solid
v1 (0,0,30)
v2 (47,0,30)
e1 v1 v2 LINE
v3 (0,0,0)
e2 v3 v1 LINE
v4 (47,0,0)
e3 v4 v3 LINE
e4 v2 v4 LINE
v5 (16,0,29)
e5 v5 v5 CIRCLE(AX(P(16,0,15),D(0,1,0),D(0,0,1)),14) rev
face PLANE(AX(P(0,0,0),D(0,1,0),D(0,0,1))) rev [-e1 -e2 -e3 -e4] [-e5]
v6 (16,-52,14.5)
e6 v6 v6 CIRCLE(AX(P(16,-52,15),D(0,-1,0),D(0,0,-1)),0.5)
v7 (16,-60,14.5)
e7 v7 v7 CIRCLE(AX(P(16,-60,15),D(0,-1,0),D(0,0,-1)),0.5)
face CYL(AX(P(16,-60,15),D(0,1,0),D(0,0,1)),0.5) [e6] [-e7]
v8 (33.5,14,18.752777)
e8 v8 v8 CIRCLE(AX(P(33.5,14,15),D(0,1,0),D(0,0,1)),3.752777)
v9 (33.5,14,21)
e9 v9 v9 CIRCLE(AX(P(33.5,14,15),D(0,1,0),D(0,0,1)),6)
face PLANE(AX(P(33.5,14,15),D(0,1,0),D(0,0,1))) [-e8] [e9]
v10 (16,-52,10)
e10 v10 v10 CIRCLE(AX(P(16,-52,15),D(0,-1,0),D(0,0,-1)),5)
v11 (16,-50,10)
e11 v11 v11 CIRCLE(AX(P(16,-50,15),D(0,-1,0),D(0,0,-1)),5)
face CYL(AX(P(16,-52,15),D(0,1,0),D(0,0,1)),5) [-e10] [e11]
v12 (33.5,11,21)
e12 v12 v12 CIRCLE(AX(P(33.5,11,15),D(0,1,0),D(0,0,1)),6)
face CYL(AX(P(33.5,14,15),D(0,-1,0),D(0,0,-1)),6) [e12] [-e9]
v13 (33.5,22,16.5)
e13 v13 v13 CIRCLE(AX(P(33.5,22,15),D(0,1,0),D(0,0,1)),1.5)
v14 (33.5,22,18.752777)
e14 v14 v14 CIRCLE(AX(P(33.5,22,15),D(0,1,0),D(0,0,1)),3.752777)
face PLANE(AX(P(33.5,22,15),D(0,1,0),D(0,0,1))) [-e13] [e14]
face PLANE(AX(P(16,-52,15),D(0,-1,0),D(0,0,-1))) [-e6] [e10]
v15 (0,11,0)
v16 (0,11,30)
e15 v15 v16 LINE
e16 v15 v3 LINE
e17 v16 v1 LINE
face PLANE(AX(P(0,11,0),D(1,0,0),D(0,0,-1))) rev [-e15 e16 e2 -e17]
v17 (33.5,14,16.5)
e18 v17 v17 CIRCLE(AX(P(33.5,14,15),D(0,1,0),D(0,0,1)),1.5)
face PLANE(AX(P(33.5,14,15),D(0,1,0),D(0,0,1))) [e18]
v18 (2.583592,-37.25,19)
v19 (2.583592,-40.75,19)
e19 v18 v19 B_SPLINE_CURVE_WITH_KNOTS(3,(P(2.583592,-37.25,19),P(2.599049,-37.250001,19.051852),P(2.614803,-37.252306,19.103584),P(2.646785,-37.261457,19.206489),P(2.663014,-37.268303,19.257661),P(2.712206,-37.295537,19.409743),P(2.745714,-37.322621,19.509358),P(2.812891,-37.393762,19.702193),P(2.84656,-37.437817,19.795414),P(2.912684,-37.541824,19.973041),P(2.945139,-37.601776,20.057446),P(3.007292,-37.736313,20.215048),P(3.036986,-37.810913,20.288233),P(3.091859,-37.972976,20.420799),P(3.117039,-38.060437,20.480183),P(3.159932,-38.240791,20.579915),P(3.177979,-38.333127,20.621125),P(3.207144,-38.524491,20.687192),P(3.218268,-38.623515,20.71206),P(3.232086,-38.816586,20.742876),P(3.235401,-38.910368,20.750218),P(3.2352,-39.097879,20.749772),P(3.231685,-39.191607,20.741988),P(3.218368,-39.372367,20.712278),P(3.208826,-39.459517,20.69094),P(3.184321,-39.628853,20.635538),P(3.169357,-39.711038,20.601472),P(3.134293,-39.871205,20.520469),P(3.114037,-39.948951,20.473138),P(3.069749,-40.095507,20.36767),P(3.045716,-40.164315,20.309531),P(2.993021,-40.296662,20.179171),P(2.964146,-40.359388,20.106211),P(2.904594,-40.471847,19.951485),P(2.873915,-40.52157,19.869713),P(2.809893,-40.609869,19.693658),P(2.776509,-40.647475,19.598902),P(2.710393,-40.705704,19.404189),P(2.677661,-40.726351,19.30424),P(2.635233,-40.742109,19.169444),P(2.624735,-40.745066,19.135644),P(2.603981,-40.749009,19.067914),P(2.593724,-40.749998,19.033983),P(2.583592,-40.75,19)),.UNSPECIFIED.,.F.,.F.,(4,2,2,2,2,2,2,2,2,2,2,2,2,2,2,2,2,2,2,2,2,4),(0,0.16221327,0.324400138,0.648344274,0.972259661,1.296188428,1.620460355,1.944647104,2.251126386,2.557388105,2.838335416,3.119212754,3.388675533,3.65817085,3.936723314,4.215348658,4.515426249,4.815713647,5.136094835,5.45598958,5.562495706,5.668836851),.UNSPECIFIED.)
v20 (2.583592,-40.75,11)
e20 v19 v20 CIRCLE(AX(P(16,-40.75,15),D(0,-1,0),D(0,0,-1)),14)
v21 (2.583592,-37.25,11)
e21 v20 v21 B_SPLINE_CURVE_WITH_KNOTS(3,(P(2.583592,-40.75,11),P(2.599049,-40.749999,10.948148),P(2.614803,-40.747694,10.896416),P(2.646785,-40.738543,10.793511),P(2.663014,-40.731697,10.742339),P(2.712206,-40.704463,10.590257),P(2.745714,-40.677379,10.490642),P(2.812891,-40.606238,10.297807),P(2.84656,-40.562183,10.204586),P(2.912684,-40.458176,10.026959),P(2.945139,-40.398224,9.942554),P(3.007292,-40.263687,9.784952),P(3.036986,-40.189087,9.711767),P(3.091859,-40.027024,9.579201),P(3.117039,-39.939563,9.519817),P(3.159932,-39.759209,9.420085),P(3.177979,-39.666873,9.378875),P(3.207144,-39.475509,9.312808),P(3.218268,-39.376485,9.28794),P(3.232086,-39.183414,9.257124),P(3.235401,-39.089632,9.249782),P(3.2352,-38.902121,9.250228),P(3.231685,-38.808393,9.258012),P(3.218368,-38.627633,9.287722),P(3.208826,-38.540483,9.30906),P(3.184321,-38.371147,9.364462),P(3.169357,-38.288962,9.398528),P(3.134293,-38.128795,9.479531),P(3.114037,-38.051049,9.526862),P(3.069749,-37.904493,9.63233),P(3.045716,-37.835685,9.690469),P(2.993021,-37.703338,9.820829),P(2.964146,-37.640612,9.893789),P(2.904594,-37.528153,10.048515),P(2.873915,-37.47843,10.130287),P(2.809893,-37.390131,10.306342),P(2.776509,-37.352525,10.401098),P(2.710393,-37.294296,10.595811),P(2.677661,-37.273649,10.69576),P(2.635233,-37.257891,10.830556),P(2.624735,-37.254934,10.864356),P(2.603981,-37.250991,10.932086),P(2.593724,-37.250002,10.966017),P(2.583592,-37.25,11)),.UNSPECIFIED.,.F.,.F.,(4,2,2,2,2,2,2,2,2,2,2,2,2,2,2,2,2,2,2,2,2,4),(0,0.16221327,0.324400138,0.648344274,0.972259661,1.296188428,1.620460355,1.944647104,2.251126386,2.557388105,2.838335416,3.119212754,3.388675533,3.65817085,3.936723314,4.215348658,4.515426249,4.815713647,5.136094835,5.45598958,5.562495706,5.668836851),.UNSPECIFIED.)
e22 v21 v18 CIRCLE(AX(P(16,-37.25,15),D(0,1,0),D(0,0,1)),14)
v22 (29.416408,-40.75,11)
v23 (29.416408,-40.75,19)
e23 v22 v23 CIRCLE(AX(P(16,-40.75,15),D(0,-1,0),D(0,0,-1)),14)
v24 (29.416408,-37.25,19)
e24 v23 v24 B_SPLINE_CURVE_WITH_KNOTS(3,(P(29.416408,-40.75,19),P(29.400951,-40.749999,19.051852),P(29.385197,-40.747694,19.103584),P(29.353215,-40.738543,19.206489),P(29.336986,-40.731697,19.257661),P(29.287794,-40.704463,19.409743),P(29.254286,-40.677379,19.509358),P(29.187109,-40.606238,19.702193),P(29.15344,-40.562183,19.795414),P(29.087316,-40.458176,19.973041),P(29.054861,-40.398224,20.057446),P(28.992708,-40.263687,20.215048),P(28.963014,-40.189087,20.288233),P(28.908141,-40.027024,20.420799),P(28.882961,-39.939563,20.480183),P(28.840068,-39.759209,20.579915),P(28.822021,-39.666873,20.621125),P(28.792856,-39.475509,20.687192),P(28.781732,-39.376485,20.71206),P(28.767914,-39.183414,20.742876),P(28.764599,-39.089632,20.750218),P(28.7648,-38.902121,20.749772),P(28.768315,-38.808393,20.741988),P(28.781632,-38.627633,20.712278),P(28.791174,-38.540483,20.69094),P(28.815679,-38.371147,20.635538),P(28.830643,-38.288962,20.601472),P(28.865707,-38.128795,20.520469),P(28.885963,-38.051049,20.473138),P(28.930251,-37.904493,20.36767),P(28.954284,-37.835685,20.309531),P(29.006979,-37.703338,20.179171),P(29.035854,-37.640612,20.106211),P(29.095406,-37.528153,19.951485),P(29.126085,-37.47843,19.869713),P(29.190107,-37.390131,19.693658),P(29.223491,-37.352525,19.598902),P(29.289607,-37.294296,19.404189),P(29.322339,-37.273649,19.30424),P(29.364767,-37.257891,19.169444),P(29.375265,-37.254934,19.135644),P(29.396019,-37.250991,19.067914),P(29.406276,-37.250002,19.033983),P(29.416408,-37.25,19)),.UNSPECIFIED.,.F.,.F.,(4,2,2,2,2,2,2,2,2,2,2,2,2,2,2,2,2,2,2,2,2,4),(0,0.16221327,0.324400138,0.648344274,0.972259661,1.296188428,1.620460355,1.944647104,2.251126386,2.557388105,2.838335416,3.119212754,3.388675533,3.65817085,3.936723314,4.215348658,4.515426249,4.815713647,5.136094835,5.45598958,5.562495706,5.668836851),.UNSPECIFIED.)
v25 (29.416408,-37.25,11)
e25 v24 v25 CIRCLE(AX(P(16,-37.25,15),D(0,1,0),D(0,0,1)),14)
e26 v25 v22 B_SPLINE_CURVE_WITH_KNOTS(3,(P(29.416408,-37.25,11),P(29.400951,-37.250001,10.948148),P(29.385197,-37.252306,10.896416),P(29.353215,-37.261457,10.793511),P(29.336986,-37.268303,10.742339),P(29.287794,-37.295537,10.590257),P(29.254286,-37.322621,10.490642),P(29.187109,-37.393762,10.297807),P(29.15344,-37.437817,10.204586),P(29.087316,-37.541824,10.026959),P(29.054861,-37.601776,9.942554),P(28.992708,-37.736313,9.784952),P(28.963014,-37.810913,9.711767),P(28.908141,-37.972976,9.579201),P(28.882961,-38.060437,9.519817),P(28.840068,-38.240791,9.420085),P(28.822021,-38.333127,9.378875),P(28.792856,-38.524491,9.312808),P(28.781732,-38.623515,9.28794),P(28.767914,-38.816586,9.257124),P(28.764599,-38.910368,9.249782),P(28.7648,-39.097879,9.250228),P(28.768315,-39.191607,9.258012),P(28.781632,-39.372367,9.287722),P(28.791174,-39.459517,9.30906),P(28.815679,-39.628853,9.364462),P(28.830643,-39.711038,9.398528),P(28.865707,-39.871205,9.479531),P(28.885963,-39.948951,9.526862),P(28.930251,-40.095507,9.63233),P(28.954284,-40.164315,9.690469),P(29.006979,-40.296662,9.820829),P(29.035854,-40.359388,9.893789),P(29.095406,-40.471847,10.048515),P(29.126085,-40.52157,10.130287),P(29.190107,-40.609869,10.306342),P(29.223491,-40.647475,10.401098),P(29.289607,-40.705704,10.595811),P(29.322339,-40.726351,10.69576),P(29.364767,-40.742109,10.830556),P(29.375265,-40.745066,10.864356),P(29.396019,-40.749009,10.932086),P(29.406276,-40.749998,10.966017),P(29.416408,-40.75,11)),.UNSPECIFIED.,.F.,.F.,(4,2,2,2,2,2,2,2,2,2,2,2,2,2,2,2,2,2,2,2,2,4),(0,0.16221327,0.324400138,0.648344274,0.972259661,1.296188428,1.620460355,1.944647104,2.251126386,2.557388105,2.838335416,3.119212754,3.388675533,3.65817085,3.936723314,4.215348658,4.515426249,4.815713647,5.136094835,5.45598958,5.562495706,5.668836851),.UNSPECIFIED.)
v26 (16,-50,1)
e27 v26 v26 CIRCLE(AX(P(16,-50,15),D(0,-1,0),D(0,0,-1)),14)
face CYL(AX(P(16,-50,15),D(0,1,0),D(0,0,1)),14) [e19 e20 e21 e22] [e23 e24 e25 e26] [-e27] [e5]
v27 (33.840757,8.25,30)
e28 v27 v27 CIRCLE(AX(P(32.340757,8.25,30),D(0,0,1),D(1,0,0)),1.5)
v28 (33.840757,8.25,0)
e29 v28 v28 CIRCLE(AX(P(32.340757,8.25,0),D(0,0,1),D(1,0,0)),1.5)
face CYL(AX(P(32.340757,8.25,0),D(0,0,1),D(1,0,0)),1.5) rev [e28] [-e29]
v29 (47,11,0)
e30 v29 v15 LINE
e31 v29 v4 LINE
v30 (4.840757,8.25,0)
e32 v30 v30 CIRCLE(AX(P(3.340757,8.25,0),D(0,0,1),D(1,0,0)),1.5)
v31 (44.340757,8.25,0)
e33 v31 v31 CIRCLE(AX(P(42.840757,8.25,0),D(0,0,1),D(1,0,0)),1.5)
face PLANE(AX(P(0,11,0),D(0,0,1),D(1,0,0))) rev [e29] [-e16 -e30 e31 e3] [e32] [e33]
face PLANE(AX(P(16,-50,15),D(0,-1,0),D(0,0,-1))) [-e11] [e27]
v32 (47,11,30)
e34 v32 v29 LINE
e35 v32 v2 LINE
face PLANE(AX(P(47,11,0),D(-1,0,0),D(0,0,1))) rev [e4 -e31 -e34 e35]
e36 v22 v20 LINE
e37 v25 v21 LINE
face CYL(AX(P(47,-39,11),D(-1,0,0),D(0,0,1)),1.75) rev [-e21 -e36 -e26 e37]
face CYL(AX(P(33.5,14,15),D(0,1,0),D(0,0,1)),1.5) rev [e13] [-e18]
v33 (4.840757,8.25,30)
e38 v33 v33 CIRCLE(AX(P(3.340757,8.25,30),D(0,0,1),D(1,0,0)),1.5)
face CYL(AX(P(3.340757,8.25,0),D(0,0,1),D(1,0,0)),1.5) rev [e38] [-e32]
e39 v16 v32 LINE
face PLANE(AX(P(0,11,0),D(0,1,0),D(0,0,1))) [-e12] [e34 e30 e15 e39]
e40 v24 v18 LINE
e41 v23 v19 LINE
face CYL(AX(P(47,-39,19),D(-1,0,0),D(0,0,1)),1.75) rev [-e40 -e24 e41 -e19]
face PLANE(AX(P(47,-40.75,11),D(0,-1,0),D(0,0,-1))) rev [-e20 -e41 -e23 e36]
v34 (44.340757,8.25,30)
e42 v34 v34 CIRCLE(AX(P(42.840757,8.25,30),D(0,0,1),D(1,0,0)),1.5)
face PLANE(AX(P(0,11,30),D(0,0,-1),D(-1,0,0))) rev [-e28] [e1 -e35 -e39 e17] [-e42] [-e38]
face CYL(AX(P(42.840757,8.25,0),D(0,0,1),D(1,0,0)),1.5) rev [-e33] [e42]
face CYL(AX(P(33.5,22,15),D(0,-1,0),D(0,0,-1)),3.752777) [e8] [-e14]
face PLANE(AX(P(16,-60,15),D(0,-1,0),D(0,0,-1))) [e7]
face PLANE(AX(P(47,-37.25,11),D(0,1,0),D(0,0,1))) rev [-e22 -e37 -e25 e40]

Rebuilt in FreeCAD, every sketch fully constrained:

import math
import FreeCAD as App
import Part
import Sketcher

doc = App.newDocument("Part")
body = doc.addObject("PartDesign::Body", "Body")

# Sketch on XZ plane
sketch1 = doc.addObject("Sketcher::SketchObject", "Sketch")
body.addObject(sketch1)
sketch1.AttachmentSupport = (doc.XZ_Plane, [""])
sketch1.MapMode = "FlatFace"
sketch1.addGeometry(Part.LineSegment(App.Vector(0, 0, 0), App.Vector(0, 30, 0)), False)
sketch1.addGeometry(Part.LineSegment(App.Vector(0, 30, 0), App.Vector(47, 30, 0)), False)
sketch1.addGeometry(Part.LineSegment(App.Vector(47, 30, 0), App.Vector(47, 0, 0)), False)
sketch1.addGeometry(Part.LineSegment(App.Vector(47, 0, 0), App.Vector(0, 0, 0)), False)
sketch1.addConstraint(Sketcher.Constraint("Coincident", 0, 2, 1, 1))
sketch1.addConstraint(Sketcher.Constraint("Coincident", 1, 2, 2, 1))
sketch1.addConstraint(Sketcher.Constraint("Coincident", 2, 2, 3, 1))
sketch1.addConstraint(Sketcher.Constraint("Coincident", 3, 2, 0, 1))
sketch1.addConstraint(Sketcher.Constraint("Vertical", 0))
sketch1.addConstraint(Sketcher.Constraint("Horizontal", 1))
sketch1.addConstraint(Sketcher.Constraint("Vertical", 2))
sketch1.addConstraint(Sketcher.Constraint("Horizontal", 3))
sketch1.addConstraint(Sketcher.Constraint("Coincident", 3, 2, -1, 1))
sketch1.addConstraint(Sketcher.Constraint("DistanceX", 1, 1, 1, 2, 47.0))
sketch1.addConstraint(Sketcher.Constraint("DistanceY", 0, 1, 0, 2, 30.0))
pad1 = doc.addObject("PartDesign::Pad", "Pad")
body.addObject(pad1)
pad1.Profile = sketch1
pad1.Length = 11
pad1.Reversed = True

# Sketch on XZ plane
sketch2 = doc.addObject("Sketcher::SketchObject", "Sketch001")
body.addObject(sketch2)
sketch2.AttachmentSupport = (doc.XZ_Plane, [""])
sketch2.MapMode = "FlatFace"
sketch2.AttachmentOffset = App.Placement(App.Vector(0, 0, -11), App.Rotation())
sketch2.addGeometry(Part.Circle(App.Vector(34, 15, 0), App.Vector(0, 0, 1), 6), False)
sketch2.addConstraint(Sketcher.Constraint("Diameter", 0, 12.0))
sketch2.addConstraint(Sketcher.Constraint("DistanceY", -1, 1, 0, 3, 15.0))
sketch2.addConstraint(Sketcher.Constraint("DistanceX", -1, 1, 0, 3, 33.5))
pad2 = doc.addObject("PartDesign::Pad", "Pad001")
body.addObject(pad2)
pad2.Profile = sketch2
pad2.Length = 3
pad2.Reversed = True

# Sketch on XZ plane
sketch3 = doc.addObject("Sketcher::SketchObject", "Sketch002")
body.addObject(sketch3)
sketch3.AttachmentSupport = (doc.XZ_Plane, [""])
sketch3.MapMode = "FlatFace"
sketch3.AttachmentOffset = App.Placement(App.Vector(0, 0, -14), App.Rotation())
sketch3.addGeometry(Part.Circle(App.Vector(33.5, 15, 0), App.Vector(0, 0, 1), 3.8), False)
sketch3.addConstraint(Sketcher.Constraint("DistanceY", -1, 1, 0, 3, 15.0))
sketch3.addConstraint(Sketcher.Constraint("DistanceX", -1, 1, 0, 3, 33.5))
sketch3.addConstraint(Sketcher.Constraint("Diameter", 0, 7.505554))
pad3 = doc.addObject("PartDesign::Pad", "Pad002")
body.addObject(pad3)
pad3.Profile = sketch3
pad3.Length = 8
pad3.Reversed = True

# Sketch on XZ plane
sketch4 = doc.addObject("Sketcher::SketchObject", "Sketch003")
body.addObject(sketch4)
sketch4.AttachmentSupport = (doc.XZ_Plane, [""])
sketch4.MapMode = "FlatFace"
sketch4.addGeometry(Part.Circle(App.Vector(16, 15, 0), App.Vector(0, 0, 1), 14), False)
sketch4.addConstraint(Sketcher.Constraint("Diameter", 0, 28.0))
sketch4.addConstraint(Sketcher.Constraint("DistanceX", -1, 1, 0, 3, 16.0))
sketch4.addConstraint(Sketcher.Constraint("DistanceY", -1, 1, 0, 3, 15.0))
pad4 = doc.addObject("PartDesign::Pad", "Pad003")
body.addObject(pad4)
pad4.Profile = sketch4
pad4.Length = 50

# Sketch on XZ plane
sketch5 = doc.addObject("Sketcher::SketchObject", "Sketch004")
body.addObject(sketch5)
sketch5.AttachmentSupport = (doc.XZ_Plane, [""])
sketch5.MapMode = "FlatFace"
sketch5.AttachmentOffset = App.Placement(App.Vector(0, 0, 50), App.Rotation())
sketch5.addGeometry(Part.Circle(App.Vector(16, 15, 0), App.Vector(0, 0, 1), 5), False)
sketch5.addConstraint(Sketcher.Constraint("Diameter", 0, 10.0))
sketch5.addConstraint(Sketcher.Constraint("DistanceX", -1, 1, 0, 3, 16.0))
sketch5.addConstraint(Sketcher.Constraint("DistanceY", -1, 1, 0, 3, 15.0))
pad5 = doc.addObject("PartDesign::Pad", "Pad004")
body.addObject(pad5)
pad5.Profile = sketch5
pad5.Length = 2

# Sketch on XY plane
sketch6 = doc.addObject("Sketcher::SketchObject", "Sketch005")
body.addObject(sketch6)
sketch6.AttachmentSupport = (doc.XY_Plane, [""])
sketch6.MapMode = "FlatFace"
sketch6.AttachmentOffset = App.Placement(App.Vector(0, 0, 30), App.Rotation())
sketch6.addGeometry(Part.Circle(App.Vector(3.3, 8.2, 0), App.Vector(0, 0, 1), 1.5), False)
sketch6.addGeometry(Part.Circle(App.Vector(32.3, 8.2, 0), App.Vector(0, 0, 1), 1.5), False)
sketch6.addGeometry(Part.Circle(App.Vector(42.8, 8.2, 0), App.Vector(0, 0, 1), 1.5), False)
sketch6.addConstraint(Sketcher.Constraint("Equal", 0, 1))
sketch6.addConstraint(Sketcher.Constraint("Equal", 1, 2))
sketch6.addConstraint(Sketcher.Constraint("Horizontal", 0, 3, 1, 3))
sketch6.addConstraint(Sketcher.Constraint("Horizontal", 1, 3, 2, 3))
sketch6.addConstraint(Sketcher.Constraint("Diameter", 0, 3.0))
sketch6.addConstraint(Sketcher.Constraint("DistanceX", 0, 3, 1, 3, 29.0))
sketch6.addConstraint(Sketcher.Constraint("DistanceX", 1, 3, 2, 3, 10.5))
sketch6.addConstraint(Sketcher.Constraint("DistanceY", -1, 1, 0, 3, 8.25))
sketch6.addConstraint(Sketcher.Constraint("DistanceX", -1, 1, 0, 3, 3.340757))
pocket1 = doc.addObject("PartDesign::Pocket", "Pocket")
body.addObject(pocket1)
pocket1.Profile = sketch6
pocket1.Type = "ThroughAll"

# Sketch on YZ plane
sketch7 = doc.addObject("Sketcher::SketchObject", "Sketch006")
body.addObject(sketch7)
sketch7.AttachmentSupport = (doc.YZ_Plane, [""])
sketch7.MapMode = "FlatFace"
sketch7.addGeometry(Part.LineSegment(App.Vector(-37.2, 19, 0), App.Vector(-37.2, 11, 0)), False)
sketch7.addGeometry(Part.ArcOfCircle(Part.Circle(App.Vector(-39, 11, 0), App.Vector(0, 0, 1), 1.8), math.radians(180), math.radians(360)), False)
sketch7.addGeometry(Part.LineSegment(App.Vector(-40.8, 11, 0), App.Vector(-40.8, 19, 0)), False)
sketch7.addGeometry(Part.ArcOfCircle(Part.Circle(App.Vector(-39, 19, 0), App.Vector(0, 0, 1), 1.8), math.radians(0), math.radians(180)), False)
sketch7.addConstraint(Sketcher.Constraint("Tangent", 0, 2, 1, 2))
sketch7.addConstraint(Sketcher.Constraint("Tangent", 1, 1, 2, 1))
sketch7.addConstraint(Sketcher.Constraint("Tangent", 2, 2, 3, 2))
sketch7.addConstraint(Sketcher.Constraint("Tangent", 3, 1, 0, 1))
sketch7.addConstraint(Sketcher.Constraint("Vertical", 0))
sketch7.addConstraint(Sketcher.Constraint("Vertical", 2))
sketch7.addConstraint(Sketcher.Constraint("DistanceY", 0, 2, 0, 1, 8.0))
sketch7.addConstraint(Sketcher.Constraint("Radius", 1, 1.75))
sketch7.addConstraint(Sketcher.Constraint("DistanceX", 1, 3, -1, 1, 39.0))
sketch7.addConstraint(Sketcher.Constraint("DistanceY", -1, 1, 1, 3, 11.0))
pocket2 = doc.addObject("PartDesign::Pocket", "Pocket001")
body.addObject(pocket2)
pocket2.Profile = sketch7
pocket2.Type = "ThroughAll"
pocket2.Reversed = True

# Sketch on XZ plane
sketch8 = doc.addObject("Sketcher::SketchObject", "Sketch007")
body.addObject(sketch8)
sketch8.AttachmentSupport = (doc.XZ_Plane, [""])
sketch8.MapMode = "FlatFace"
sketch8.AttachmentOffset = App.Placement(App.Vector(0, 0, -22), App.Rotation())
sketch8.addGeometry(Part.Circle(App.Vector(33.5, 15, 0), App.Vector(0, 0, 1), 1.5), False)
sketch8.addConstraint(Sketcher.Constraint("Diameter", 0, 3.0))
sketch8.addConstraint(Sketcher.Constraint("DistanceY", -1, 1, 0, 3, 15.0))
sketch8.addConstraint(Sketcher.Constraint("DistanceX", -1, 1, 0, 3, 33.5))
pocket3 = doc.addObject("PartDesign::Pocket", "Pocket002")
body.addObject(pocket3)
pocket3.Profile = sketch8
pocket3.Length = 8
pocket3.Reversed = True

# Sketch on XZ plane
sketch9 = doc.addObject("Sketcher::SketchObject", "Sketch008")
body.addObject(sketch9)
sketch9.AttachmentSupport = (doc.XZ_Plane, [""])
sketch9.MapMode = "FlatFace"
sketch9.AttachmentOffset = App.Placement(App.Vector(0, 0, 52), App.Rotation())
sketch9.addGeometry(Part.Circle(App.Vector(16, 15, 0), App.Vector(0, 0, 1), 0.5), False)
sketch9.addConstraint(Sketcher.Constraint("Diameter", 0, 1.0))
sketch9.addConstraint(Sketcher.Constraint("DistanceX", -1, 1, 0, 3, 16.0))
sketch9.addConstraint(Sketcher.Constraint("DistanceY", -1, 1, 0, 3, 15.0))
pad6 = doc.addObject("PartDesign::Pad", "Pad005")
body.addObject(pad6)
pad6.Profile = sketch9
pad6.Length = 8

doc.recompute()
